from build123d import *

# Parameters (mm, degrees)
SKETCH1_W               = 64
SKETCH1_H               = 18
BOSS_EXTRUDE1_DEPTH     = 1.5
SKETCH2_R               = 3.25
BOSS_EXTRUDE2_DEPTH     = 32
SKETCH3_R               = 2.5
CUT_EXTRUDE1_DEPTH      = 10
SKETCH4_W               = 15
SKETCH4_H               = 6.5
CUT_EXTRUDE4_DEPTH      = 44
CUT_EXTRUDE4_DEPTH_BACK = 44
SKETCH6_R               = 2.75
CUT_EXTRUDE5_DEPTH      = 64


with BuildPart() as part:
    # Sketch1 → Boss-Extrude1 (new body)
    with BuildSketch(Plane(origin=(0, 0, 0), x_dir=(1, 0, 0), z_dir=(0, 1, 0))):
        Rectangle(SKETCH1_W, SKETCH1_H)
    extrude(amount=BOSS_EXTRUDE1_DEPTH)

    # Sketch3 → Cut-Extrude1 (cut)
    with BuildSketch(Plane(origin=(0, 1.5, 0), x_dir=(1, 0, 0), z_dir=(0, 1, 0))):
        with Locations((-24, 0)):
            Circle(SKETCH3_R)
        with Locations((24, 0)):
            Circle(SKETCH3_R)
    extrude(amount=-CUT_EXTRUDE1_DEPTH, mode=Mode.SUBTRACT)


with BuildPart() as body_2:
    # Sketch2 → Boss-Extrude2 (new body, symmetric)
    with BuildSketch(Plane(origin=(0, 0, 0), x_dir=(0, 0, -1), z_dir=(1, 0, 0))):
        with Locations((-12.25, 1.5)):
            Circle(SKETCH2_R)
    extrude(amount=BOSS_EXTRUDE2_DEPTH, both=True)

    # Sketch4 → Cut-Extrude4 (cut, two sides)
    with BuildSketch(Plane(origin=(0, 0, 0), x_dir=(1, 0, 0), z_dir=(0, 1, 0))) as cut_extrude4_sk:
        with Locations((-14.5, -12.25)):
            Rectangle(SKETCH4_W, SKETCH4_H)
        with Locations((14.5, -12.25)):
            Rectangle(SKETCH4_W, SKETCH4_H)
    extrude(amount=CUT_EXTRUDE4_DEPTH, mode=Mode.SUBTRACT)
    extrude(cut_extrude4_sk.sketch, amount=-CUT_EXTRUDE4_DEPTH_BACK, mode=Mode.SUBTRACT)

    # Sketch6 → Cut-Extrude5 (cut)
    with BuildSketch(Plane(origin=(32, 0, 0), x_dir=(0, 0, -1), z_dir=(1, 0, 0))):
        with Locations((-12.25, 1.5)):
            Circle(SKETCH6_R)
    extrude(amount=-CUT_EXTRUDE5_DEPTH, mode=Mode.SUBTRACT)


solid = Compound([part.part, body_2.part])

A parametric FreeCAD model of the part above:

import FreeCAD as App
import Part
import Sketcher
from FreeCAD import Vector
Q = App.Units.Quantity

doc = App.newDocument("Part")
body = doc.addObject("PartDesign::Body", "Body")

sketch1 = doc.addObject("Sketcher::SketchObject", "Sketch")
body.addObject(sketch1)
sketch1.AttachmentSupport = (doc.XZ_Plane, [""])
sketch1.MapMode = "FlatFace"
sketch1.addGeometry([
    Part.LineSegment(Vector(-32, -9, 0), Vector(-32, 9, 0)),
    Part.LineSegment(Vector(-32, 9, 0), Vector(32, 9, 0)),
    Part.LineSegment(Vector(32, 9, 0), Vector(32, -9, 0)),
    Part.LineSegment(Vector(32, -9, 0), Vector(-32, -9, 0)),
], False)
sketch1.addConstraint([
    Sketcher.Constraint("Coincident", 0, 2, 1, 1),
    Sketcher.Constraint("Coincident", 1, 2, 2, 1),
    Sketcher.Constraint("Coincident", 2, 2, 3, 1),
    Sketcher.Constraint("Coincident", 3, 2, 0, 1),
    Sketcher.Constraint("Vertical", 0),
    Sketcher.Constraint("Horizontal", 1),
    Sketcher.Constraint("Vertical", 2),
    Sketcher.Constraint("Horizontal", 3),
    Sketcher.Constraint("Symmetric", 0, 2, 2, 2, -1, 1),
    Sketcher.Constraint("DistanceX", 1, 1, 1, 2, Q("64 mm")),
    Sketcher.Constraint("DistanceY", 0, 1, 0, 2, Q("18 mm")),
])
pad1 = doc.addObject("PartDesign::Pad", "Pad")
body.addObject(pad1)
pad1.Profile = sketch1
pad1.Length = 1.5
pad1.Reversed = True

sketch2 = doc.addObject("Sketcher::SketchObject", "Sketch001")
body.addObject(sketch2)
sketch2.AttachmentSupport = (doc.XZ_Plane, [""])
sketch2.MapMode = "FlatFace"
sketch2.AttachmentOffset = App.Placement(Vector(0, 0, -1.5), App.Rotation())
sketch2.addGeometry([
    Part.Circle(Vector(-24, 0, 0), Vector(0, 0, 1), 2.5),
    Part.Circle(Vector(24, 0, 0), Vector(0, 0, 1), 2.5),
], False)
sketch2.addConstraint([
    Sketcher.Constraint("Equal", 0, 1),
    Sketcher.Constraint("Symmetric", 0, 3, 1, 3, -1, 1),
    Sketcher.Constraint("PointOnObject", 0, 3, -1),
    Sketcher.Constraint("Diameter", 0, Q("5 mm")),
    Sketcher.Constraint("DistanceX", 0, 3, -1, 1, Q("24 mm")),
])
pocket1 = doc.addObject("PartDesign::Pocket", "Pocket")
body.addObject(pocket1)
pocket1.Profile = sketch2
pocket1.Length = 10
pocket1.Reversed = True
body2 = doc.addObject("PartDesign::Body", "Body001")
body2.AllowCompound = True

sketch3 = doc.addObject("Sketcher::SketchObject", "Sketch002")
body2.addObject(sketch3)
sketch3.AttachmentSupport = (doc.getObject("YZ_Plane001"), [""])
sketch3.MapMode = "FlatFace"
sketch3.addGeometry(Part.Circle(Vector(1.5, 12.2, 0), Vector(0, 0, 1), 3.2), False)
sketch3.addConstraint([
    Sketcher.Constraint("Diameter", 0, Q("6.5 mm")),
    Sketcher.Constraint("DistanceX", -1, 1, 0, 3, Q("1.5 mm")),
    Sketcher.Constraint("DistanceY", -1, 1, 0, 3, Q("12.25 mm")),
])
pad2 = doc.addObject("PartDesign::Pad", "Pad001")
body2.addObject(pad2)
pad2.Profile = sketch3
pad2.Length = 64
pad2.Midplane = True

sketch4 = doc.addObject("Sketcher::SketchObject", "Sketch003")
body2.addObject(sketch4)
sketch4.AttachmentSupport = (doc.getObject("XZ_Plane001"), [""])
sketch4.MapMode = "FlatFace"
sketch4.addGeometry([
    Part.LineSegment(Vector(-22, 9, 0), Vector(-22, 16, 0)),
    Part.LineSegment(Vector(-22, 16, 0), Vector(-7, 16, 0)),
    Part.LineSegment(Vector(-7, 16, 0), Vector(-7, 9, 0)),
    Part.LineSegment(Vector(-7, 9, 0), Vector(-22, 9, 0)),
    Part.LineSegment(Vector(7, 9, 0), Vector(7, 16, 0)),
    Part.LineSegment(Vector(7, 16, 0), Vector(22, 16, 0)),
    Part.LineSegment(Vector(22, 16, 0), Vector(22, 9, 0)),
    Part.LineSegment(Vector(22, 9, 0), Vector(7, 9, 0)),
], False)
sketch4.addConstraint([
    Sketcher.Constraint("Coincident", 0, 2, 1, 1),
    Sketcher.Constraint("Coincident", 1, 2, 2, 1),
    Sketcher.Constraint("Coincident", 2, 2, 3, 1),
    Sketcher.Constraint("Coincident", 3, 2, 0, 1),
    Sketcher.Constraint("Coincident", 4, 2, 5, 1),
    Sketcher.Constraint("Coincident", 5, 2, 6, 1),
    Sketcher.Constraint("Coincident", 6, 2, 7, 1),
    Sketcher.Constraint("Coincident", 7, 2, 4, 1),
    Sketcher.Constraint("Vertical", 0),
    Sketcher.Constraint("Horizontal", 1),
    Sketcher.Constraint("Vertical", 2),
    Sketcher.Constraint("Horizontal", 3),
    Sketcher.Constraint("Vertical", 4),
    Sketcher.Constraint("Horizontal", 5),
    Sketcher.Constraint("Vertical", 6),
    Sketcher.Constraint("Horizontal", 7),
    Sketcher.Constraint("Symmetric", 1, 2, 4, 2, -2),
    Sketcher.Constraint("Symmetric", 3, 2, 6, 2, -2),
    Sketcher.Constraint("DistanceX", 1, 1, 1, 2, Q("15 mm")),
    Sketcher.Constraint("DistanceY", 0, 1, 0, 2, Q("6.5 mm")),
    Sketcher.Constraint("DistanceX", 0, 2, -1, 1, Q("22 mm")),
    Sketcher.Constraint("DistanceY", -1, 1, 2, 2, Q("9 mm")),
])
pocket2 = doc.addObject("PartDesign::Pocket", "Pocket001")
body2.addObject(pocket2)
pocket2.Profile = sketch4
pocket2.Type = "ThroughAll"
pocket2.Midplane = True

sketch5 = doc.addObject("Sketcher::SketchObject", "Sketch004")
body2.addObject(sketch5)
sketch5.AttachmentSupport = (doc.getObject("YZ_Plane001"), [""])
sketch5.MapMode = "FlatFace"
sketch5.AttachmentOffset = App.Placement(Vector(0, 0, 32), App.Rotation())
sketch5.addGeometry(Part.Circle(Vector(1.5, 12.2, 0), Vector(0, 0, 1), 2.8), False)
sketch5.addConstraint([
    Sketcher.Constraint("Diameter", 0, Q("5.5 mm")),
    Sketcher.Constraint("DistanceX", -1, 1, 0, 3, Q("1.5 mm")),
    Sketcher.Constraint("DistanceY", -1, 1, 0, 3, Q("12.25 mm")),
])
pocket3 = doc.addObject("PartDesign::Pocket", "Pocket002")
body2.addObject(pocket3)
pocket3.Profile = sketch5
pocket3.Length = 64

doc.recompute()
